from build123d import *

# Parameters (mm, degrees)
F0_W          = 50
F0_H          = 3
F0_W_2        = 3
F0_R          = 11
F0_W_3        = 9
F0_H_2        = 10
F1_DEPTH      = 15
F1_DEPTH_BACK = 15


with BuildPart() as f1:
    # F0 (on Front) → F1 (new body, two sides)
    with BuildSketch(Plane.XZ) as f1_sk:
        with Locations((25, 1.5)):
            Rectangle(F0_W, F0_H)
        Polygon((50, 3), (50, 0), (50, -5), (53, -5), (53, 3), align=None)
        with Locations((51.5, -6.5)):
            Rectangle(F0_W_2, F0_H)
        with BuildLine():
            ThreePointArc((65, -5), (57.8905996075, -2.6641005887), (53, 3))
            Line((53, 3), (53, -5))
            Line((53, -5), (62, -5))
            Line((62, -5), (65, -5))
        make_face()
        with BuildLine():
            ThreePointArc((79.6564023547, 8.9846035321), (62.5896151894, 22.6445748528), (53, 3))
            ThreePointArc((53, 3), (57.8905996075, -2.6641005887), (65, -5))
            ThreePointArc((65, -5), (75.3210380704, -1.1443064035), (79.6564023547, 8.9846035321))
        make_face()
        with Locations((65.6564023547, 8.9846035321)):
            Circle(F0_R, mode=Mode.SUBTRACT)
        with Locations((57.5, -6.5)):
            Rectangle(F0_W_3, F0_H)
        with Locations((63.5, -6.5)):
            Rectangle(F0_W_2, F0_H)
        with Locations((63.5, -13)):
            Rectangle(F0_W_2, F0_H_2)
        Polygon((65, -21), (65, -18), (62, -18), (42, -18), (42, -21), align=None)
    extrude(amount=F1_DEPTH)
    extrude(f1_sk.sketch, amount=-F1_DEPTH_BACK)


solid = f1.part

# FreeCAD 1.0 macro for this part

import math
import FreeCAD as App
import Part
import Sketcher

V = App.Vector
Q = App.Units.Quantity

doc = App.newDocument("Part")
body = doc.addObject("PartDesign::Body", "Body")

sketch1 = doc.addObject("Sketcher::SketchObject", "Sketch")
body.addObject(sketch1)
sketch1.AttachmentSupport = (doc.XZ_Plane, [""])
sketch1.MapMode = "FlatFace"
sketch1.addGeometry([
    Part.LineSegment(V(0, 3, 0), V(0, 0, 0)),
    Part.LineSegment(V(0, 0, 0), V(50, 0, 0)),
    Part.LineSegment(V(50, 0, 0), V(50, -8, 0)),
    Part.LineSegment(V(50, -8, 0), V(62, -8, 0)),
    Part.LineSegment(V(62, -8, 0), V(62, -18, 0)),
    Part.LineSegment(V(62, -18, 0), V(42, -18, 0)),
    Part.LineSegment(V(42, -18, 0), V(42, -21, 0)),
    Part.LineSegment(V(42, -21, 0), V(65, -21, 0)),
    Part.LineSegment(V(65, -21, 0), V(65, -5, 0)),
    Part.ArcOfCircle(Part.Circle(V(65.7, 9, 0), V(0, 0, 1), 14), math.radians(-93), math.radians(205)),
    Part.LineSegment(V(53, 3, 0), V(0, 3, 0)),
    Part.Circle(V(65.7, 9, 0), V(0, 0, 1), 11),
], False)
sketch1.addConstraint([
    Sketcher.Constraint("Coincident", 0, 2, 1, 1),
    Sketcher.Constraint("Coincident", 1, 2, 2, 1),
    Sketcher.Constraint("Coincident", 2, 2, 3, 1),
    Sketcher.Constraint("Coincident", 3, 2, 4, 1),
    Sketcher.Constraint("Coincident", 4, 2, 5, 1),
    Sketcher.Constraint("Coincident", 5, 2, 6, 1),
    Sketcher.Constraint("Coincident", 6, 2, 7, 1),
    Sketcher.Constraint("Coincident", 7, 2, 8, 1),
    Sketcher.Constraint("Coincident", 8, 2, 9, 1),
    Sketcher.Constraint("Coincident", 9, 2, 10, 1),
    Sketcher.Constraint("Coincident", 10, 2, 0, 1),
    Sketcher.Constraint("Vertical", 0),
    Sketcher.Constraint("Horizontal", 1),
    Sketcher.Constraint("Vertical", 2),
    Sketcher.Constraint("Horizontal", 3),
    Sketcher.Constraint("Vertical", 4),
    Sketcher.Constraint("Horizontal", 5),
    Sketcher.Constraint("Vertical", 6),
    Sketcher.Constraint("Horizontal", 7),
    Sketcher.Constraint("Vertical", 8),
    Sketcher.Constraint("Horizontal", 10),
    Sketcher.Constraint("Coincident", 0, 2, -1, 1),
    Sketcher.Constraint("Coincident", 11, 3, 9, 3),
    Sketcher.Constraint("Equal", 0, 6),
    Sketcher.Constraint("Diameter", 11, Q("22 mm")),
    Sketcher.Constraint("Radius", 9, Q("14 mm")),
    Sketcher.Constraint("DistanceX", 1, 1, 1, 2, Q("50 mm")),
    Sketcher.Constraint("DistanceX", 3, 1, 3, 2, Q("12 mm")),
    Sketcher.Constraint("DistanceX", 5, 2, 5, 1, Q("20 mm")),
    Sketcher.Constraint("DistanceX", 7, 1, 7, 2, Q("23 mm")),
    Sketcher.Constraint("DistanceX", 10, 2, 10, 1, Q("53 mm")),
    Sketcher.Constraint("DistanceY", 0, 2, 0, 1, Q("3 mm")),
    Sketcher.Constraint("DistanceY", 2, 2, 2, 1, Q("8 mm")),
    Sketcher.Constraint("DistanceY", 4, 2, 4, 1, Q("10 mm")),
    Sketcher.Constraint("DistanceY", 8, 1, 8, 2, Q("16 mm")),
])
pad1 = doc.addObject("PartDesign::Pad", "Pad")
body.addObject(pad1)
pad1.Profile = sketch1
pad1.Type = "TwoLengths"
pad1.Length = 15
pad1.Length2 = 15

doc.recompute()
